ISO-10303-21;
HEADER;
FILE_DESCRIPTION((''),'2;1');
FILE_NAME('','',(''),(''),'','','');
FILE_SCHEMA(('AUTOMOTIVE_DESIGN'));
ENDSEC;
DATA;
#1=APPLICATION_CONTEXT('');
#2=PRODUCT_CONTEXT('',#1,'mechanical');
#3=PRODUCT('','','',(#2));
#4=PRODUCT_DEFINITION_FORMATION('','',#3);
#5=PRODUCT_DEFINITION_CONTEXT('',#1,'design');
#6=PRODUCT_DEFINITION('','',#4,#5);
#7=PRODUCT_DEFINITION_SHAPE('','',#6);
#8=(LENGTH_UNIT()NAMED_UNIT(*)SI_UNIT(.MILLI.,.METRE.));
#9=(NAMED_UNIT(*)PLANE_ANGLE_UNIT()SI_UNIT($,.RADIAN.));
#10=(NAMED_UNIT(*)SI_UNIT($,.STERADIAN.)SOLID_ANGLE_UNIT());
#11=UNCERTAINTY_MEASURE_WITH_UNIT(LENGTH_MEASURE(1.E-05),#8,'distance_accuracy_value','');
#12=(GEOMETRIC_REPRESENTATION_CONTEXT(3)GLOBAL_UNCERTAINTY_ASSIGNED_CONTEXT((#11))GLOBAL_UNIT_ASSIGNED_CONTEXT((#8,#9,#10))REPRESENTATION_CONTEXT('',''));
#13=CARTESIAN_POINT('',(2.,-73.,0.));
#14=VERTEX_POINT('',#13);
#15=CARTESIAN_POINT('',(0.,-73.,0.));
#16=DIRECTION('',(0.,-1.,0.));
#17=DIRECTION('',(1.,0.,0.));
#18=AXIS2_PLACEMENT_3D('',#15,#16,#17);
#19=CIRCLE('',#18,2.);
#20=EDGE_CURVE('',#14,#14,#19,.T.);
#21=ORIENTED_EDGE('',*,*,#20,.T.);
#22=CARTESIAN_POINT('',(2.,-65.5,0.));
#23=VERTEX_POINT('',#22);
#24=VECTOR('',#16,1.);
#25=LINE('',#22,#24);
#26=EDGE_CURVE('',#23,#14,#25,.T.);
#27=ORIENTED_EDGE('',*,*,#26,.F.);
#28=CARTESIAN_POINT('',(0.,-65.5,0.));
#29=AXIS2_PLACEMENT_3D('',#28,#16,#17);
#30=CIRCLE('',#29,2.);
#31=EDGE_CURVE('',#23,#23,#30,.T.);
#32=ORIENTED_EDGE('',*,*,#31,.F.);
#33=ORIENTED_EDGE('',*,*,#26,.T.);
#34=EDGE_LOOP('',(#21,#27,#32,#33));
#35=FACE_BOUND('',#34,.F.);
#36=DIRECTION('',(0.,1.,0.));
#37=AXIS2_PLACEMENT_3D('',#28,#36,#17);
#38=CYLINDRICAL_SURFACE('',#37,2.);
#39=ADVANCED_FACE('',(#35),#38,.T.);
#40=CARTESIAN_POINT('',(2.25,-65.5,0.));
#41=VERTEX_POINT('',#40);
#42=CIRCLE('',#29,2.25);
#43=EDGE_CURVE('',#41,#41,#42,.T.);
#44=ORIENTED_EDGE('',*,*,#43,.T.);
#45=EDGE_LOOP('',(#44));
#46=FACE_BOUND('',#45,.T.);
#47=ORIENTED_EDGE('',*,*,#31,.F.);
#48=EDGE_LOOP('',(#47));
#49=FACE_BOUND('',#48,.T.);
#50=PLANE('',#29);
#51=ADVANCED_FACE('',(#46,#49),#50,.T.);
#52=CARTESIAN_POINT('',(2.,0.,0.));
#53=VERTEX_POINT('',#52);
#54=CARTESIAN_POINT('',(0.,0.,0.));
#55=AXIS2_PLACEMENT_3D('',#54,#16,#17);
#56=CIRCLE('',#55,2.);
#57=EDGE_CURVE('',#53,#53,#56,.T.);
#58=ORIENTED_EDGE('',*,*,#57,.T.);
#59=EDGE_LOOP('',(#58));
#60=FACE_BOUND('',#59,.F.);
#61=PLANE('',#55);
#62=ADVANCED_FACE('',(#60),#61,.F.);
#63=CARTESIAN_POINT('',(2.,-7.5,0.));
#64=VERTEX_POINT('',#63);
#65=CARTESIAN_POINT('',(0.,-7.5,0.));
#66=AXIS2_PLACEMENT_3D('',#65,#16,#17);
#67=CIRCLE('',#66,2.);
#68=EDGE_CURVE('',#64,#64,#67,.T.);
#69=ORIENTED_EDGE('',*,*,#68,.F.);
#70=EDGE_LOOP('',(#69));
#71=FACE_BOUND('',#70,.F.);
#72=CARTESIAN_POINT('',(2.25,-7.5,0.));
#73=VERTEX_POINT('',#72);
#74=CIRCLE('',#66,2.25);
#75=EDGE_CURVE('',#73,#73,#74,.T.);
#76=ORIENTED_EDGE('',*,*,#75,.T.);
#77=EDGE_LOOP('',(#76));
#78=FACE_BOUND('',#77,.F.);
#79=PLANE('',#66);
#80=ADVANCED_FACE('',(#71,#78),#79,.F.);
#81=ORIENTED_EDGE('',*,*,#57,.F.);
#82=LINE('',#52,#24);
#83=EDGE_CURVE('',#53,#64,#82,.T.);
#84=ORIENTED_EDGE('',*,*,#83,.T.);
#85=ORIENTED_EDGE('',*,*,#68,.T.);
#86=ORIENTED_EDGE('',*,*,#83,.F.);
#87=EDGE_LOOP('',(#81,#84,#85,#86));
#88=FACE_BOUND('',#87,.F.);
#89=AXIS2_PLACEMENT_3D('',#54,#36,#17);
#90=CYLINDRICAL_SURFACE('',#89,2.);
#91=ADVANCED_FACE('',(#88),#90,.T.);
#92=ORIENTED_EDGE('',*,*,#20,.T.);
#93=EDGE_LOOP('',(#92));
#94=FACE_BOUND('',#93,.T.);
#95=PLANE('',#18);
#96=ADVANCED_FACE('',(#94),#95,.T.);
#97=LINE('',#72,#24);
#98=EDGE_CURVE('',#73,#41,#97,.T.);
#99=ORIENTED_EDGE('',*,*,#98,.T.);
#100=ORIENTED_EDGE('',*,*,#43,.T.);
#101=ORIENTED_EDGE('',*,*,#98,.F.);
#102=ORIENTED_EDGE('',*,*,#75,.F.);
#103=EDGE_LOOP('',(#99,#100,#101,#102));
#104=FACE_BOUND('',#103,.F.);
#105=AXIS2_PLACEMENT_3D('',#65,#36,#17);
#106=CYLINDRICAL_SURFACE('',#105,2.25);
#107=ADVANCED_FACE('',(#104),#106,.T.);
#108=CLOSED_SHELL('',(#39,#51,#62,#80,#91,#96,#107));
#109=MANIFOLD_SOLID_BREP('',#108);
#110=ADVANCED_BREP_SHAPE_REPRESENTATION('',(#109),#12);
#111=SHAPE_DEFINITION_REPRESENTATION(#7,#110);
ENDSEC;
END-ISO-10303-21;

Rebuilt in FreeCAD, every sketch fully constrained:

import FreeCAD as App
import Part
import Sketcher
from FreeCAD import Vector

doc = App.newDocument("Part")
body = doc.addObject("PartDesign::Body", "Body")

# Sketch on XZ plane
sketch1 = body.newObject("Sketcher::SketchObject", "Sketch")
sketch1.AttachmentSupport = (doc.getObject("XZ_Plane"), [""])
sketch1.MapMode = "FlatFace"
sketch1.addGeometry(Part.Circle(Vector(0, 0, 0), Vector(0, 0, 1), 2), False)
sketch1.addConstraint(Sketcher.Constraint("Coincident", 0, 3, -1, 1))
sketch1.addConstraint(Sketcher.Constraint("Diameter", 0, 4.0))
pad1 = body.newObject("PartDesign::Pad", "Pad")
pad1.Profile = sketch1
pad1.Length = 7.5

# Sketch on XZ plane
sketch2 = body.newObject("Sketcher::SketchObject", "Sketch001")
sketch2.AttachmentSupport = (doc.getObject("XZ_Plane"), [""])
sketch2.MapMode = "FlatFace"
sketch2.AttachmentOffset = App.Placement(Vector(0, 0, 7.5), App.Rotation())
sketch2.addGeometry(Part.Circle(Vector(0, 0, 0), Vector(0, 0, 1), 2.2), False)
sketch2.addConstraint(Sketcher.Constraint("Coincident", 0, 3, -1, 1))
sketch2.addConstraint(Sketcher.Constraint("Diameter", 0, 4.5))
pad2 = body.newObject("PartDesign::Pad", "Pad001")
pad2.Profile = sketch2
pad2.Length = 58

# Sketch on XZ plane
sketch3 = body.newObject("Sketcher::SketchObject", "Sketch002")
sketch3.AttachmentSupport = (doc.getObject("XZ_Plane"), [""])
sketch3.MapMode = "FlatFace"
sketch3.AttachmentOffset = App.Placement(Vector(0, 0, 65.5), App.Rotation())
sketch3.addGeometry(Part.Circle(Vector(0, 0, 0), Vector(0, 0, 1), 2), False)
sketch3.addConstraint(Sketcher.Constraint("Coincident", 0, 3, -1, 1))
sketch3.addConstraint(Sketcher.Constraint("Diameter", 0, 4.0))
pad3 = body.newObject("PartDesign::Pad", "Pad002")
pad3.Profile = sketch3
pad3.Length = 7.5

doc.recompute()
